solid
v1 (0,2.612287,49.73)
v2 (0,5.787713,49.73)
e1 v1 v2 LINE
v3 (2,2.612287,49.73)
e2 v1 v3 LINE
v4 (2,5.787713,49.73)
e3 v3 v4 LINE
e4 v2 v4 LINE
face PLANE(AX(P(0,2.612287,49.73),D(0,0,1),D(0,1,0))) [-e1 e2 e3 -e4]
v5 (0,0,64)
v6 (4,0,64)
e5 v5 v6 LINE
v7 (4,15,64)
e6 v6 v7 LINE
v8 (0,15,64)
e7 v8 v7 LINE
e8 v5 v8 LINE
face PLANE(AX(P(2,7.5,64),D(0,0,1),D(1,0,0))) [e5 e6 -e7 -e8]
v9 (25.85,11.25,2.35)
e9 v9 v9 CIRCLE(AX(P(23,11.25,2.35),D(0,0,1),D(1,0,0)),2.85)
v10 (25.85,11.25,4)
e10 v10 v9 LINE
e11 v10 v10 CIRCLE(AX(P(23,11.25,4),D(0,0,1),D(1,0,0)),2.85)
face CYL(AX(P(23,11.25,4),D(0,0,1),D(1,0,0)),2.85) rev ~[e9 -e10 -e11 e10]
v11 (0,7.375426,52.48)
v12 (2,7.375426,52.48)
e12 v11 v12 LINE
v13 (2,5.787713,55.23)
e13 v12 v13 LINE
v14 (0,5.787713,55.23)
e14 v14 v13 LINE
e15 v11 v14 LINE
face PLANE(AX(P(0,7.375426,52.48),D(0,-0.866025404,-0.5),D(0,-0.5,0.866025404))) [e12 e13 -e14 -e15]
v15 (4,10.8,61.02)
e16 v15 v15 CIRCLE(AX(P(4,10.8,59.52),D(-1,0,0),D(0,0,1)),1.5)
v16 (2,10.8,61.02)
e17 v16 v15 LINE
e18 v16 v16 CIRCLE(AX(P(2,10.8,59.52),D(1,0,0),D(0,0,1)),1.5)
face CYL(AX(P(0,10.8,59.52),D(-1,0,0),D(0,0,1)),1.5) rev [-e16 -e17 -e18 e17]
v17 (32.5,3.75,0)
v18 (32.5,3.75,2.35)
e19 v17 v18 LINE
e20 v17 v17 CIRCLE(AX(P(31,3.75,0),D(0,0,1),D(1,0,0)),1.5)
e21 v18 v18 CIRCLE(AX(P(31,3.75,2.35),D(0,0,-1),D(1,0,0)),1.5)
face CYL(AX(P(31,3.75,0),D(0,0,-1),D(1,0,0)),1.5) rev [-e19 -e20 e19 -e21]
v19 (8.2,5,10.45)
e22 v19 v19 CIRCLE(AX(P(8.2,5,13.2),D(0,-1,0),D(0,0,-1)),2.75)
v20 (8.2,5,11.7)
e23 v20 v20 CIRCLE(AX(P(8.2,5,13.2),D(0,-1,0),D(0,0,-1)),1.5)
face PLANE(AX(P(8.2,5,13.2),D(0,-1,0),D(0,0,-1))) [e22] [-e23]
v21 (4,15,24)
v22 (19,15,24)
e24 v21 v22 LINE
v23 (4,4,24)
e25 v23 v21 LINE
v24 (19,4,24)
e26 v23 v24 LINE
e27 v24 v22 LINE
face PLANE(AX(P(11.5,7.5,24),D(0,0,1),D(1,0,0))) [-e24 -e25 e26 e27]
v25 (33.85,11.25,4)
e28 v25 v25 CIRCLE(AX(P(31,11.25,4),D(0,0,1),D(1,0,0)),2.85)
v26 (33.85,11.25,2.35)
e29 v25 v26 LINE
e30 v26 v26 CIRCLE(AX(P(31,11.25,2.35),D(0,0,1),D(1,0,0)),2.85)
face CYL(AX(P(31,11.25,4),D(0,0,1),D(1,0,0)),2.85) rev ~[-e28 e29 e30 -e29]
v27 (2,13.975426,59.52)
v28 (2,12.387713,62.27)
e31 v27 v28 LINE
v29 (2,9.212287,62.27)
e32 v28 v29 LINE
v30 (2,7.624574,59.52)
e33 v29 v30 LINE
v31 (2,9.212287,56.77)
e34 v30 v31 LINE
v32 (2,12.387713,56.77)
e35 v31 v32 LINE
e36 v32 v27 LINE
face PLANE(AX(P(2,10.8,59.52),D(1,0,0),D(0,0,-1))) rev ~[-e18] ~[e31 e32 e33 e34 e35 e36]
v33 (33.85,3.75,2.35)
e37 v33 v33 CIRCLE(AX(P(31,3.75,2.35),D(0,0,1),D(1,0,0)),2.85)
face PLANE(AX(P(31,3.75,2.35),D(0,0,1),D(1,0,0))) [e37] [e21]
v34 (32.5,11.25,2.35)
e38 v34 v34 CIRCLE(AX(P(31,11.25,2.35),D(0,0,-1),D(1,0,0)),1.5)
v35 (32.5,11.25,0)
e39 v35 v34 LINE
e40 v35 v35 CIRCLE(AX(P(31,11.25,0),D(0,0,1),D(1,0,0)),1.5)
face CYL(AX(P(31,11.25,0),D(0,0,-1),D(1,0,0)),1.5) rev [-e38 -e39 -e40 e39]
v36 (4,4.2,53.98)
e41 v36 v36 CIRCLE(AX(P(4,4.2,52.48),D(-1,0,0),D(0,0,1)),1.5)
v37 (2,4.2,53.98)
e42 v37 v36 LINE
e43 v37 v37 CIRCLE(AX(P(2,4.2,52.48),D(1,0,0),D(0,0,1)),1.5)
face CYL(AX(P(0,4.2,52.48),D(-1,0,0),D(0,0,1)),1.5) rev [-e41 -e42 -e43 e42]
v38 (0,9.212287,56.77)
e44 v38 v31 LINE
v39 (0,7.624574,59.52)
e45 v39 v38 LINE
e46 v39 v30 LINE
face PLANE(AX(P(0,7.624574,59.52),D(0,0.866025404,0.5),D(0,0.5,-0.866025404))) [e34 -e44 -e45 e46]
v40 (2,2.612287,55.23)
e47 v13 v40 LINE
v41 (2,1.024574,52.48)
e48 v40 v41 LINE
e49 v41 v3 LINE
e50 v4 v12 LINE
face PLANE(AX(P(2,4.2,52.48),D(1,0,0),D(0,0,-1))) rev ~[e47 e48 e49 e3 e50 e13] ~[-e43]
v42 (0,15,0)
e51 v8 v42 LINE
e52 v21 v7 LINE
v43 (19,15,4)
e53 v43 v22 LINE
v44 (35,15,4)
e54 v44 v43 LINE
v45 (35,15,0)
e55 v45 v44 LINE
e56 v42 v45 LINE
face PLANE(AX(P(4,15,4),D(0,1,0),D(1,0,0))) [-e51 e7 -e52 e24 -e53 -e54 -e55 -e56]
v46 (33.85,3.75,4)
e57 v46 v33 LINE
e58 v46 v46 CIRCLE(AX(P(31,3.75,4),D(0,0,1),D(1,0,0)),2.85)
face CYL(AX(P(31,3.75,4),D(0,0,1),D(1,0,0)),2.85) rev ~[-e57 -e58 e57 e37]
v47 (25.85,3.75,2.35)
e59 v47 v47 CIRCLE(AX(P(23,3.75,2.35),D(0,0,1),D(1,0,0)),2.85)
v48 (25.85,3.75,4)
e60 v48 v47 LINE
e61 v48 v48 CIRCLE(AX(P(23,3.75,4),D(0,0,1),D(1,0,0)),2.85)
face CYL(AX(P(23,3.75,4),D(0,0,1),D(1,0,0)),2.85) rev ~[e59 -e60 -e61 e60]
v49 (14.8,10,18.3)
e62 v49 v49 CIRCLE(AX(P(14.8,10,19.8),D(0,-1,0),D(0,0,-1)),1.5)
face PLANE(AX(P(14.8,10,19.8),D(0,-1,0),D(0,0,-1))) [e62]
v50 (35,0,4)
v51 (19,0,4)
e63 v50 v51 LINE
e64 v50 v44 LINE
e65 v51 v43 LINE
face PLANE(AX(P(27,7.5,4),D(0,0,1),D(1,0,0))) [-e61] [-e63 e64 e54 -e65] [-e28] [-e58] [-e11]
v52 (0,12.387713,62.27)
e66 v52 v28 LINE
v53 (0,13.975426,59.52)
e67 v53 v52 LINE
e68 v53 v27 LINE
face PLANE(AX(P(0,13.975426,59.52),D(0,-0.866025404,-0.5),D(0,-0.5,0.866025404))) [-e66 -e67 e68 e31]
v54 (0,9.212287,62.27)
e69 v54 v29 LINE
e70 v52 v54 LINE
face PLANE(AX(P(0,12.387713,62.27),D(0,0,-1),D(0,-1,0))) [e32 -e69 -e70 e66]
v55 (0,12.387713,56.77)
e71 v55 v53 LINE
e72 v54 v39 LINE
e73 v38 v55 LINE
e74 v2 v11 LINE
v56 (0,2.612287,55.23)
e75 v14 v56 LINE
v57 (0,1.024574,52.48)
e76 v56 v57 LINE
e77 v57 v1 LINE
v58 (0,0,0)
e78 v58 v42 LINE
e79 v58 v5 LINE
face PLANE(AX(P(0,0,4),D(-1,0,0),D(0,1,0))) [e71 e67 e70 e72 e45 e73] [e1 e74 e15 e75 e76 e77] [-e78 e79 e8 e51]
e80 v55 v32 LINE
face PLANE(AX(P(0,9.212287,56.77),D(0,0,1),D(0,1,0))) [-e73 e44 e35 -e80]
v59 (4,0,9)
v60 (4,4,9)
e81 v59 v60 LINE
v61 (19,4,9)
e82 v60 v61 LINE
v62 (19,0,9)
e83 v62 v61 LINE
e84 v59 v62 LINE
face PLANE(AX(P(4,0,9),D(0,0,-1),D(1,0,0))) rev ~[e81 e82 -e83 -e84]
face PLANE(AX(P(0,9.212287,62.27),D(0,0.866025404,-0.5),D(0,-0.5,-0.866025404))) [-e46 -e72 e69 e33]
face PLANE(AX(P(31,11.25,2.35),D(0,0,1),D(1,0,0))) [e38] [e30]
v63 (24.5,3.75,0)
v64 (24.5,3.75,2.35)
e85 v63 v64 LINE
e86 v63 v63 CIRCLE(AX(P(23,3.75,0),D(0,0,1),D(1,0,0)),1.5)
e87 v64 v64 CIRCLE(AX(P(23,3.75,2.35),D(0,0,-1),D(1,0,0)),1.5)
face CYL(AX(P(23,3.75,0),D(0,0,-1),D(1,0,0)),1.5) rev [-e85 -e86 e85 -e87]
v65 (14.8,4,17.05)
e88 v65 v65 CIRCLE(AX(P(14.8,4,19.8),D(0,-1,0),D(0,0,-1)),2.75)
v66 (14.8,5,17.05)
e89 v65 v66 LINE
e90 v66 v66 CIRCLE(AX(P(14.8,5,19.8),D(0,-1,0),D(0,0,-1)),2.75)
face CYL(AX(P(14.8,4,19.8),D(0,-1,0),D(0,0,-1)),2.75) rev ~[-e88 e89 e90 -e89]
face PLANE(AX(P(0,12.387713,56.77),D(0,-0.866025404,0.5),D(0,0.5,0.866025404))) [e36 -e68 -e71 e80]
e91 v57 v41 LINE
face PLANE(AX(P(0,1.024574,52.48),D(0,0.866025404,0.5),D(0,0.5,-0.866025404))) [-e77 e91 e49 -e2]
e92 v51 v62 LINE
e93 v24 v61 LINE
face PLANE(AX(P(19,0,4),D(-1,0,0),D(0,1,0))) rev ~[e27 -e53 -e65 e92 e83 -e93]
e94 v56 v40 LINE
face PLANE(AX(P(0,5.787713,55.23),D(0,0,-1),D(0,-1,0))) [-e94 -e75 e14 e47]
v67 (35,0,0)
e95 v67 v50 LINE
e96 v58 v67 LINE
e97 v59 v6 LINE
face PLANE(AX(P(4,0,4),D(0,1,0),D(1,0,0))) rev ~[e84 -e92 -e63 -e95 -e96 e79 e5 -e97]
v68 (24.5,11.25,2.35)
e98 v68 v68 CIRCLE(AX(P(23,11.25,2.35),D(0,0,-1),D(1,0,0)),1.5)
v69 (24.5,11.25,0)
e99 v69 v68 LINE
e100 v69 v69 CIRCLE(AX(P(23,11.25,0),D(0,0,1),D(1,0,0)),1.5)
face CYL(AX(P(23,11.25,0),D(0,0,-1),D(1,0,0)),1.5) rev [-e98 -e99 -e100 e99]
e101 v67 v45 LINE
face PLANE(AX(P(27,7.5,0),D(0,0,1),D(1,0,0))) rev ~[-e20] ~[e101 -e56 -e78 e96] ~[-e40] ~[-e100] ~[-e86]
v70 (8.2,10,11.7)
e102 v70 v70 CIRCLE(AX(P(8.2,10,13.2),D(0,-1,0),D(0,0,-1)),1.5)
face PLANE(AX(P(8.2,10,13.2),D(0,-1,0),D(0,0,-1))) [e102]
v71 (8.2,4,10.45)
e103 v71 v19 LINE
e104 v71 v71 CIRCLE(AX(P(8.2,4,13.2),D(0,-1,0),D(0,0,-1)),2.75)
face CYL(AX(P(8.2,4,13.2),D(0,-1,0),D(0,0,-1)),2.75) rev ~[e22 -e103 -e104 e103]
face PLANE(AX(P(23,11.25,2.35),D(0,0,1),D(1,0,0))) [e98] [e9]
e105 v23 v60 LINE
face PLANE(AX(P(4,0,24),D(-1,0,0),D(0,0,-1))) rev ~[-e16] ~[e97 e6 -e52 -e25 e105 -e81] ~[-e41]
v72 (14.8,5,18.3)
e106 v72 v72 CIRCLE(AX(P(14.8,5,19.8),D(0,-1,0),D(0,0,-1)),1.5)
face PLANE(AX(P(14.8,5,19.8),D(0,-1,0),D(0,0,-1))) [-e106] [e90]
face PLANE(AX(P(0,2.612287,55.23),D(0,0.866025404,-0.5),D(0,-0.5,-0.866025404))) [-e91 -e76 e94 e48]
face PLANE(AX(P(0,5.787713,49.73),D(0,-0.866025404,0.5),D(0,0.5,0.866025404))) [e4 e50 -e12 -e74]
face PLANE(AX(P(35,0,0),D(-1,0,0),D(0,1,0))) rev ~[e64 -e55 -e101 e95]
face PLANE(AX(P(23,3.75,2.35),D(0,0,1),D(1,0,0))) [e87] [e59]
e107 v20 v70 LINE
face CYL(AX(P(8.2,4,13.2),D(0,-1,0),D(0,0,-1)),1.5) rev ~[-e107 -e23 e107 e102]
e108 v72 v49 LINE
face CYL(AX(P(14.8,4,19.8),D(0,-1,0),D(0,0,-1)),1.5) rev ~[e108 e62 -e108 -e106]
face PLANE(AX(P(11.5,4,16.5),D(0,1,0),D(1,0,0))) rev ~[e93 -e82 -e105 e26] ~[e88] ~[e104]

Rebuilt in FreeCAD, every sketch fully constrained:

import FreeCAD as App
import Part
import Sketcher
from FreeCAD import Vector
Q = App.Units.Quantity


def add_polygon(sketch, points):
    """Adds a closed chain of lines whose ends are joined by coincident constraints."""
    first, n = sketch.GeometryCount, len(points)
    for a, b in zip(points, points[1:] + points[:1]):
        sketch.addGeometry(Part.LineSegment(App.Vector(*a, 0), App.Vector(*b, 0)), False)
    for i in range(n):
        sketch.addConstraint(Sketcher.Constraint("Coincident", first + i, 2, first + (i + 1) % n, 1))

doc = App.newDocument("Part")
body = doc.addObject("PartDesign::Body", "Body")

# Sketch on XY plane
sketch1 = body.newObject("Sketcher::SketchObject", "Sketch")
sketch1.AttachmentSupport = (doc.getObject("XY_Plane"), [""])
sketch1.MapMode = "FlatFace"
add_polygon(sketch1, [(35, 0), (35, 15), (0, 15), (0, 0)])  # lines 0-3
sketch1.addGeometry(Part.Circle(Vector(31, 11.25, 0), Vector(0, 0, 1), 1.5), False)  # 4
sketch1.addGeometry(Part.Circle(Vector(23, 3.75, 0), Vector(0, 0, 1), 1.5), False)  # 5
sketch1.addGeometry(Part.Circle(Vector(31, 3.75, 0), Vector(0, 0, 1), 1.5), False)  # 6
sketch1.addGeometry(Part.Circle(Vector(23, 11.25, 0), Vector(0, 0, 1), 1.5), False)  # 7
sketch1.addConstraint(Sketcher.Constraint("Vertical", 0))
sketch1.addConstraint(Sketcher.Constraint("Horizontal", 1))
sketch1.addConstraint(Sketcher.Constraint("Vertical", 2))
sketch1.addConstraint(Sketcher.Constraint("Horizontal", 3))
sketch1.addConstraint(Sketcher.Constraint("Coincident", 2, 2, -1, 1))
sketch1.addConstraint(Sketcher.Constraint("Equal", 4, 5))
sketch1.addConstraint(Sketcher.Constraint("Equal", 5, 6))
sketch1.addConstraint(Sketcher.Constraint("Equal", 6, 7))
sketch1.addConstraint(Sketcher.Constraint("Horizontal", 5, 3, 6, 3))
sketch1.addConstraint(Sketcher.Constraint("Horizontal", 4, 3, 7, 3))
sketch1.addConstraint(Sketcher.Constraint("Vertical", 4, 3, 6, 3))
sketch1.addConstraint(Sketcher.Constraint("Vertical", 5, 3, 7, 3))
sketch1.addConstraint(Sketcher.Constraint("Diameter", 4, 3.0))
sketch1.addConstraint(Sketcher.Constraint("DistanceX", 1, 2, 1, 1, 35.0))
sketch1.addConstraint(Sketcher.Constraint("DistanceY", 0, 1, 0, 2, 15.0))
sketch1.addConstraint(Sketcher.Constraint("DistanceX", -1, 1, 4, 3, 31.0))
sketch1.addConstraint(Sketcher.Constraint("DistanceX", -1, 1, 5, 3, 23.0))
sketch1.addConstraint(Sketcher.Constraint("DistanceY", 5, 3, 4, 3, 7.5))
sketch1.addConstraint(Sketcher.Constraint("DistanceY", -1, 1, 4, 3, 11.25))
pad1 = body.newObject("PartDesign::Pad", "Pad")
pad1.Profile = sketch1
pad1.Length = 4

# Sketch on XY plane
sketch2 = body.newObject("Sketcher::SketchObject", "Sketch001")
sketch2.AttachmentSupport = (doc.getObject("XY_Plane"), [""])
sketch2.MapMode = "FlatFace"
sketch2.AttachmentOffset = App.Placement(Vector(0, 0, 4), App.Rotation())
add_polygon(sketch2, [(0, 15), (0, 0), (4, 0), (4, 15)])  # lines 0-3
sketch2.addConstraint(Sketcher.Constraint("Vertical", 0))
sketch2.addConstraint(Sketcher.Constraint("Horizontal", 1))
sketch2.addConstraint(Sketcher.Constraint("Vertical", 2))
sketch2.addConstraint(Sketcher.Constraint("Horizontal", 3))
sketch2.addConstraint(Sketcher.Constraint("Coincident", 0, 2, -1, 1))
sketch2.addConstraint(Sketcher.Constraint("DistanceX", 1, 1, 1, 2, 4.0))
sketch2.addConstraint(Sketcher.Constraint("DistanceY", 0, 2, 0, 1, 15.0))
pad2 = body.newObject("PartDesign::Pad", "Pad001")
pad2.Profile = sketch2
pad2.Length = 60

# Sketch on XY plane
sketch3 = body.newObject("Sketcher::SketchObject", "Sketch002")
sketch3.AttachmentSupport = (doc.getObject("XY_Plane"), [""])
sketch3.MapMode = "FlatFace"
sketch3.AttachmentOffset = App.Placement(Vector(0, 0, 4), App.Rotation())
add_polygon(sketch3, [(4, 15), (4, 0), (19, 0), (19, 15)])  # lines 0-3
sketch3.addConstraint(Sketcher.Constraint("Vertical", 0))
sketch3.addConstraint(Sketcher.Constraint("Horizontal", 1))
sketch3.addConstraint(Sketcher.Constraint("Vertical", 2))
sketch3.addConstraint(Sketcher.Constraint("Horizontal", 3))
sketch3.addConstraint(Sketcher.Constraint("PointOnObject", 0, 2, -1))
sketch3.addConstraint(Sketcher.Constraint("Equal", 3, 0))
sketch3.addConstraint(Sketcher.Constraint("DistanceX", 1, 1, 1, 2, 15.0))
sketch3.addConstraint(Sketcher.Constraint("DistanceX", -1, 1, 0, 2, 4.0))
pad3 = body.newObject("PartDesign::Pad", "Pad002")
pad3.Profile = sketch3
pad3.Length = 20

# Sketch on XY plane
sketch4 = body.newObject("Sketcher::SketchObject", "Sketch003")
sketch4.AttachmentSupport = (doc.getObject("XY_Plane"), [""])
sketch4.MapMode = "FlatFace"
sketch4.AttachmentOffset = App.Placement(Vector(0, 0, 4), App.Rotation())
sketch4.addGeometry(Part.Circle(Vector(23, 3.75, 0), Vector(0, 0, 1), 2.85), False)
sketch4.addGeometry(Part.Circle(Vector(31, 3.75, 0), Vector(0, 0, 1), 2.85), False)
sketch4.addGeometry(Part.Circle(Vector(23, 11.25, 0), Vector(0, 0, 1), 2.85), False)
sketch4.addGeometry(Part.Circle(Vector(31, 11.25, 0), Vector(0, 0, 1), 2.85), False)
sketch4.addConstraint(Sketcher.Constraint("Equal", 0, 1))
sketch4.addConstraint(Sketcher.Constraint("Equal", 1, 2))
sketch4.addConstraint(Sketcher.Constraint("Equal", 2, 3))
sketch4.addConstraint(Sketcher.Constraint("Horizontal", 0, 3, 1, 3))
sketch4.addConstraint(Sketcher.Constraint("Horizontal", 2, 3, 3, 3))
sketch4.addConstraint(Sketcher.Constraint("Vertical", 0, 3, 2, 3))
sketch4.addConstraint(Sketcher.Constraint("Vertical", 1, 3, 3, 3))
sketch4.addConstraint(Sketcher.Constraint("Diameter", 0, 5.7))
sketch4.addConstraint(Sketcher.Constraint("DistanceX", -1, 1, 0, 3, 23.0))
sketch4.addConstraint(Sketcher.Constraint("DistanceX", -1, 1, 1, 3, 31.0))
sketch4.addConstraint(Sketcher.Constraint("DistanceY", 0, 3, 2, 3, 7.5))
sketch4.addConstraint(Sketcher.Constraint("DistanceY", -1, 1, 0, 3, 3.75))
pocket1 = body.newObject("PartDesign::Pocket", "Pocket")
pocket1.Profile = sketch4
pocket1.Length = 1.65

# Sketch on YZ plane
sketch5 = body.newObject("Sketcher::SketchObject", "Sketch004")
sketch5.AttachmentSupport = (doc.getObject("YZ_Plane"), [""])
sketch5.MapMode = "FlatFace"
sketch5.addGeometry(Part.Circle(Vector(10.8, 59.52, 0), Vector(0, 0, 1), 1.5), False)
sketch5.addConstraint(Sketcher.Constraint("Diameter", 0, 3.0))
sketch5.addConstraint(Sketcher.Constraint("DistanceX", -1, 1, 0, 3, 10.8))
sketch5.addConstraint(Sketcher.Constraint("DistanceY", -1, 1, 0, 3, 59.52))
pocket2 = body.newObject("PartDesign::Pocket", "Pocket001")
pocket2.Profile = sketch5
pocket2.Type = "UpToFirst"
pocket2.Reversed = True

# Sketch on YZ plane
sketch6 = body.newObject("Sketcher::SketchObject", "Sketch005")
sketch6.AttachmentSupport = (doc.getObject("YZ_Plane"), [""])
sketch6.MapMode = "FlatFace"
sketch6.addGeometry(Part.Circle(Vector(4.2, 52.48, 0), Vector(0, 0, 1), 1.5), False)
sketch6.addConstraint(Sketcher.Constraint("Diameter", 0, 3.0))
sketch6.addConstraint(Sketcher.Constraint("DistanceX", -1, 1, 0, 3, 4.2))
sketch6.addConstraint(Sketcher.Constraint("DistanceY", -1, 1, 0, 3, 52.48))
pocket3 = body.newObject("PartDesign::Pocket", "Pocket002")
pocket3.Profile = sketch6
pocket3.Type = "UpToFirst"
pocket3.Reversed = True

# Sketch on YZ plane
sketch7 = body.newObject("Sketcher::SketchObject", "Sketch006")
sketch7.AttachmentSupport = (doc.getObject("YZ_Plane"), [""])
sketch7.MapMode = "FlatFace"
add_polygon(sketch7, [(13.975426, 59.52), (12.387713, 62.27), (9.212287, 62.27), (7.624574, 59.52), (9.212287, 56.77), (12.387713, 56.77)])  # lines 0-5
sketch7.addGeometry(Part.Circle(Vector(10.8, 59.52, 0), Vector(0, 0, 1), 1.5), False)  # 6
add_polygon(sketch7, [(7.375426, 52.48), (5.787713, 55.23), (2.612287, 55.23), (1.024574, 52.48), (2.612287, 49.73), (5.787713, 49.73)])  # lines 7-12
sketch7.addGeometry(Part.Circle(Vector(4.2, 52.48, 0), Vector(0, 0, 1), 1.5), False)  # 13
sketch7.addConstraint(Sketcher.Constraint("Horizontal", 1))
sketch7.addConstraint(Sketcher.Constraint("Horizontal", 4))
sketch7.addConstraint(Sketcher.Constraint("Horizontal", 8))
sketch7.addConstraint(Sketcher.Constraint("Horizontal", 11))
sketch7.addConstraint(Sketcher.Constraint("Equal", 6, 13))
sketch7.addConstraint(Sketcher.Constraint("Parallel", 0, 3))
sketch7.addConstraint(Sketcher.Constraint("Parallel", 2, 5))
sketch7.addConstraint(Sketcher.Constraint("Parallel", 3, 7))
sketch7.addConstraint(Sketcher.Constraint("Parallel", 5, 9))
sketch7.addConstraint(Sketcher.Constraint("Parallel", 7, 10))
sketch7.addConstraint(Sketcher.Constraint("Parallel", 9, 12))
sketch7.addConstraint(Sketcher.Constraint("Horizontal", 6, 3, 2, 2))
sketch7.addConstraint(Sketcher.Constraint("Horizontal", 2, 2, 5, 2))
sketch7.addConstraint(Sketcher.Constraint("Horizontal", 13, 3, 9, 2))
sketch7.addConstraint(Sketcher.Constraint("Horizontal", 9, 2, 12, 2))
sketch7.addConstraint(Sketcher.Constraint("Vertical", 1, 2, 3, 2))
sketch7.addConstraint(Sketcher.Constraint("Vertical", 0, 2, 4, 2))
sketch7.addConstraint(Sketcher.Constraint("Vertical", 8, 2, 10, 2))
sketch7.addConstraint(Sketcher.Constraint("Equal", 4, 8))
sketch7.addConstraint(Sketcher.Constraint("Equal", 5, 7))
sketch7.addConstraint(Sketcher.Constraint("Diameter", 6, 3.0))
sketch7.addConstraint(Sketcher.Constraint("Angle", 0, Q("120 deg")))
sketch7.addConstraint(Sketcher.Constraint("DistanceX", -1, 1, 6, 3, 10.8))
sketch7.addConstraint(Sketcher.Constraint("DistanceX", -1, 1, 13, 3, 4.2))
sketch7.addConstraint(Sketcher.Constraint("DistanceY", 3, 2, 1, 2, 5.5))
sketch7.addConstraint(Sketcher.Constraint("DistanceX", 7, 2, 4, 2, 6.6))
sketch7.addConstraint(Sketcher.Constraint("DistanceY", -1, 1, 6, 3, 59.52))
sketch7.addConstraint(Sketcher.Constraint("DistanceY", -1, 1, 13, 3, 52.48))
sketch7.addConstraint(Sketcher.Constraint("DistanceX", 1, 2, 1, 1, 3.175426))
sketch7.addConstraint(Sketcher.Constraint("DistanceX", -1, 1, 0, 2, 12.387713))
pocket4 = body.newObject("PartDesign::Pocket", "Pocket003")
pocket4.Profile = sketch7
pocket4.Length = 2
pocket4.Reversed = True

# Sketch on XZ plane
sketch8 = body.newObject("Sketcher::SketchObject", "Sketch007")
sketch8.AttachmentSupport = (doc.getObject("XZ_Plane"), [""])
sketch8.MapMode = "FlatFace"
add_polygon(sketch8, [(4, 9), (4, 24), (19, 24), (19, 9)])  # lines 0-3
sketch8.addConstraint(Sketcher.Constraint("Vertical", 0))
sketch8.addConstraint(Sketcher.Constraint("Horizontal", 1))
sketch8.addConstraint(Sketcher.Constraint("Vertical", 2))
sketch8.addConstraint(Sketcher.Constraint("Horizontal", 3))
sketch8.addConstraint(Sketcher.Constraint("Equal", 3, 0))
sketch8.addConstraint(Sketcher.Constraint("DistanceX", 1, 1, 1, 2, 15.0))
sketch8.addConstraint(Sketcher.Constraint("DistanceX", -1, 1, 0, 2, 4.0))
sketch8.addConstraint(Sketcher.Constraint("DistanceY", -1, 1, 0, 2, 24.0))
pocket5 = body.newObject("PartDesign::Pocket", "Pocket004")
pocket5.Profile = sketch8
pocket5.Length = 4

# Sketch on XZ plane
sketch9 = body.newObject("Sketcher::SketchObject", "Sketch008")
sketch9.AttachmentSupport = (doc.getObject("XZ_Plane"), [""])
sketch9.MapMode = "FlatFace"
sketch9.AttachmentOffset = App.Placement(Vector(0, 0, -4), App.Rotation())
sketch9.addGeometry(Part.Circle(Vector(8.2, 13.2, 0), Vector(0, 0, 1), 1.5), False)
sketch9.addGeometry(Part.Circle(Vector(14.8, 19.8, 0), Vector(0, 0, 1), 1.5), False)
sketch9.addConstraint(Sketcher.Constraint("Equal", 0, 1))
sketch9.addConstraint(Sketcher.Constraint("Diameter", 0, 3.0))
sketch9.addConstraint(Sketcher.Constraint("DistanceX", -1, 1, 0, 3, 8.2))
sketch9.addConstraint(Sketcher.Constraint("DistanceY", -1, 1, 0, 3, 13.2))
sketch9.addConstraint(Sketcher.Constraint("DistanceX", -1, 1, 1, 3, 14.8))
sketch9.addConstraint(Sketcher.Constraint("DistanceY", -1, 1, 1, 3, 19.8))
pocket6 = body.newObject("PartDesign::Pocket", "Pocket005")
pocket6.Profile = sketch9
pocket6.Length = 6

# Sketch on XZ plane
sketch10 = body.newObject("Sketcher::SketchObject", "Sketch009")
sketch10.AttachmentSupport = (doc.getObject("XZ_Plane"), [""])
sketch10.MapMode = "FlatFace"
sketch10.AttachmentOffset = App.Placement(Vector(0, 0, -4), App.Rotation())
sketch10.addGeometry(Part.Circle(Vector(8.2, 13.2, 0), Vector(0, 0, 1), 2.75), False)
sketch10.addGeometry(Part.Circle(Vector(14.8, 19.8, 0), Vector(0, 0, 1), 2.75), False)
sketch10.addConstraint(Sketcher.Constraint("Equal", 0, 1))
sketch10.addConstraint(Sketcher.Constraint("Diameter", 0, 5.5))
sketch10.addConstraint(Sketcher.Constraint("DistanceX", -1, 1, 0, 3, 8.2))
sketch10.addConstraint(Sketcher.Constraint("DistanceY", -1, 1, 0, 3, 13.2))
sketch10.addConstraint(Sketcher.Constraint("DistanceX", -1, 1, 1, 3, 14.8))
sketch10.addConstraint(Sketcher.Constraint("DistanceY", -1, 1, 1, 3, 19.8))
pocket7 = body.newObject("PartDesign::Pocket", "Pocket006")
pocket7.Profile = sketch10
pocket7.Length = 1

doc.recompute()
